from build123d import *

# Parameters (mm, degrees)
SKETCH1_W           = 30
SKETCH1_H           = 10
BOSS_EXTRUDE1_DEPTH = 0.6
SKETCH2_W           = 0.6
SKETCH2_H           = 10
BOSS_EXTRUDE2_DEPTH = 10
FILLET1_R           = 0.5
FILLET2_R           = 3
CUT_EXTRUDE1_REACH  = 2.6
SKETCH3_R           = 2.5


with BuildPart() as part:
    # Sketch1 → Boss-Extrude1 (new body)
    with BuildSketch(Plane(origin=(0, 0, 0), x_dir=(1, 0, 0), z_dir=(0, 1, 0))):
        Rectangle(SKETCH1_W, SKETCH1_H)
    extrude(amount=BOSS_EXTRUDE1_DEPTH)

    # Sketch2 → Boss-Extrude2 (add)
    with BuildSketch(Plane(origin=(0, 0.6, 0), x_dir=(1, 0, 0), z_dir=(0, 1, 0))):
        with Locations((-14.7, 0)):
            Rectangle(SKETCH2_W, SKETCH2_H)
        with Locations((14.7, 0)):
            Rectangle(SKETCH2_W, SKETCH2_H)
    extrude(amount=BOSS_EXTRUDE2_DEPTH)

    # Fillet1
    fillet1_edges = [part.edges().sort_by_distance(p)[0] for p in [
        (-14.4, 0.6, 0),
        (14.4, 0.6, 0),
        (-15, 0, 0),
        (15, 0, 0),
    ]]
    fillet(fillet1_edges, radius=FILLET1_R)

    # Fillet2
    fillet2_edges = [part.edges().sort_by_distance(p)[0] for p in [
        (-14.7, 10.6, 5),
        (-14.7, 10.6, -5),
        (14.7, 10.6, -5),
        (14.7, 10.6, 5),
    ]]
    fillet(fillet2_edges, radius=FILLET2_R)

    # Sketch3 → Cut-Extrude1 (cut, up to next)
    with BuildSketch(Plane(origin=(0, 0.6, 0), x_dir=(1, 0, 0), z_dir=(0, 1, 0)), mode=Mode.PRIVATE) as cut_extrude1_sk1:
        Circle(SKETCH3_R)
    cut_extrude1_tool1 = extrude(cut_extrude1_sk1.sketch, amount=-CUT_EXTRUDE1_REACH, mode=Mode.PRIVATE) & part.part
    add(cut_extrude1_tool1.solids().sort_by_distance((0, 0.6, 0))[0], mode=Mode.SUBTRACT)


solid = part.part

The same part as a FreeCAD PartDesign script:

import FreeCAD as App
import Part
import Sketcher
from FreeCAD import Vector
Q = App.Units.Quantity


def edges_at(feature, points):
    """Names of the edges that pass closest to the given points."""
    edges = feature.Shape.Edges
    near = lambda p: min(range(len(edges)), key=lambda i: edges[i].distToShape(Part.Vertex(*p))[0])
    return sorted({f"Edge{near(p) + 1}" for p in points})

doc = App.newDocument("Part")
body = doc.addObject("PartDesign::Body", "Body")

# Sketch on XZ plane
sketch1 = doc.addObject("Sketcher::SketchObject", "Sketch")
body.addObject(sketch1)
sketch1.AttachmentSupport = (doc.XZ_Plane, [""])
sketch1.MapMode = "FlatFace"
sketch1.addGeometry([
    Part.LineSegment(Vector(-15, -5, 0), Vector(-15, 5, 0)),
    Part.LineSegment(Vector(-15, 5, 0), Vector(15, 5, 0)),
    Part.LineSegment(Vector(15, 5, 0), Vector(15, -5, 0)),
    Part.LineSegment(Vector(15, -5, 0), Vector(-15, -5, 0)),
], False)
sketch1.addConstraint([
    Sketcher.Constraint("Coincident", 0, 2, 1, 1),
    Sketcher.Constraint("Coincident", 1, 2, 2, 1),
    Sketcher.Constraint("Coincident", 2, 2, 3, 1),
    Sketcher.Constraint("Coincident", 3, 2, 0, 1),
    Sketcher.Constraint("Vertical", 0),
    Sketcher.Constraint("Horizontal", 1),
    Sketcher.Constraint("Vertical", 2),
    Sketcher.Constraint("Horizontal", 3),
    Sketcher.Constraint("Symmetric", 0, 2, 2, 2, -1, 1),
    Sketcher.Constraint("DistanceX", 1, 1, 1, 2, Q("30 mm")),
    Sketcher.Constraint("DistanceY", 0, 1, 0, 2, Q("10 mm")),
])
pad1 = doc.addObject("PartDesign::Pad", "Pad")
body.addObject(pad1)
pad1.Profile = sketch1
pad1.Length = 0.6
pad1.Reversed = True

# Sketch on XZ plane
sketch2 = doc.addObject("Sketcher::SketchObject", "Sketch001")
body.addObject(sketch2)
sketch2.AttachmentSupport = (doc.XZ_Plane, [""])
sketch2.MapMode = "FlatFace"
sketch2.AttachmentOffset = App.Placement(Vector(0, 0, -0.6), App.Rotation())
sketch2.addGeometry([
    Part.LineSegment(Vector(-15, -5, 0), Vector(-15, 5, 0)),  # 0
    Part.LineSegment(Vector(-15, 5, 0), Vector(-14.4, 5, 0)),  # 1
    Part.LineSegment(Vector(-14.4, 5, 0), Vector(-14.4, -5, 0)),  # 2
    Part.LineSegment(Vector(-14.4, -5, 0), Vector(-15, -5, 0)),  # 3
    Part.LineSegment(Vector(14.4, -5, 0), Vector(14.4, 5, 0)),  # 4
    Part.LineSegment(Vector(14.4, 5, 0), Vector(15, 5, 0)),  # 5
    Part.LineSegment(Vector(15, 5, 0), Vector(15, -5, 0)),  # 6
    Part.LineSegment(Vector(15, -5, 0), Vector(14.4, -5, 0)),  # 7
], False)
sketch2.addConstraint([
    Sketcher.Constraint("Coincident", 0, 2, 1, 1),
    Sketcher.Constraint("Coincident", 1, 2, 2, 1),
    Sketcher.Constraint("Coincident", 2, 2, 3, 1),
    Sketcher.Constraint("Coincident", 3, 2, 0, 1),
    Sketcher.Constraint("Coincident", 4, 2, 5, 1),
    Sketcher.Constraint("Coincident", 5, 2, 6, 1),
    Sketcher.Constraint("Coincident", 6, 2, 7, 1),
    Sketcher.Constraint("Coincident", 7, 2, 4, 1),
    Sketcher.Constraint("Vertical", 0),
    Sketcher.Constraint("Horizontal", 1),
    Sketcher.Constraint("Vertical", 2),
    Sketcher.Constraint("Horizontal", 3),
    Sketcher.Constraint("Vertical", 4),
    Sketcher.Constraint("Horizontal", 5),
    Sketcher.Constraint("Vertical", 6),
    Sketcher.Constraint("Horizontal", 7),
    Sketcher.Constraint("Symmetric", 2, 2, 4, 2, -1, 1),
    Sketcher.Constraint("Symmetric", 0, 2, 6, 2, -1, 1),
    Sketcher.Constraint("Horizontal", 1, 2, 4, 2),
    Sketcher.Constraint("DistanceY", 0, 1, 0, 2, Q("10 mm")),
    Sketcher.Constraint("DistanceX", 1, 1, 1, 2, Q("0.6 mm")),
    Sketcher.Constraint("DistanceX", 0, 2, -1, 1, Q("15 mm")),
])
pad2 = doc.addObject("PartDesign::Pad", "Pad001")
body.addObject(pad2)
pad2.Profile = sketch2
pad2.Length = 10
pad2.Reversed = True
doc.recompute()

fillet = doc.addObject("PartDesign::Fillet", "Fillet")
body.addObject(fillet)
fillet.Base = (pad2, edges_at(pad2, [
    (-14.4, 0.6, 0),
    (14.4, 0.6, 0),
    (-15, 0, 0),
    (15, 0, 0),
]))
fillet.Radius = 0.5
doc.recompute()

fillet2 = doc.addObject("PartDesign::Fillet", "Fillet001")
body.addObject(fillet2)
fillet2.Base = (fillet, edges_at(fillet, [
    (-14.7, 10.6, 5),
    (-14.7, 10.6, -5),
    (14.7, 10.6, -5),
    (14.7, 10.6, 5),
]))
fillet2.Radius = 3

# Sketch on XZ plane
sketch3 = doc.addObject("Sketcher::SketchObject", "Sketch002")
body.addObject(sketch3)
sketch3.AttachmentSupport = (doc.XZ_Plane, [""])
sketch3.MapMode = "FlatFace"
sketch3.AttachmentOffset = App.Placement(Vector(0, 0, -0.6), App.Rotation())
sketch3.addGeometry(Part.Circle(Vector(0, 0, 0), Vector(0, 0, 1), 2.5), False)
sketch3.addConstraint([
    Sketcher.Constraint("Coincident", 0, 3, -1, 1),
    Sketcher.Constraint("Diameter", 0, Q("5 mm")),
])
pocket1 = doc.addObject("PartDesign::Pocket", "Pocket")
body.addObject(pocket1)
pocket1.Profile = sketch3
pocket1.Type = "UpToFirst"
pocket1.Reversed = True

doc.recompute()
